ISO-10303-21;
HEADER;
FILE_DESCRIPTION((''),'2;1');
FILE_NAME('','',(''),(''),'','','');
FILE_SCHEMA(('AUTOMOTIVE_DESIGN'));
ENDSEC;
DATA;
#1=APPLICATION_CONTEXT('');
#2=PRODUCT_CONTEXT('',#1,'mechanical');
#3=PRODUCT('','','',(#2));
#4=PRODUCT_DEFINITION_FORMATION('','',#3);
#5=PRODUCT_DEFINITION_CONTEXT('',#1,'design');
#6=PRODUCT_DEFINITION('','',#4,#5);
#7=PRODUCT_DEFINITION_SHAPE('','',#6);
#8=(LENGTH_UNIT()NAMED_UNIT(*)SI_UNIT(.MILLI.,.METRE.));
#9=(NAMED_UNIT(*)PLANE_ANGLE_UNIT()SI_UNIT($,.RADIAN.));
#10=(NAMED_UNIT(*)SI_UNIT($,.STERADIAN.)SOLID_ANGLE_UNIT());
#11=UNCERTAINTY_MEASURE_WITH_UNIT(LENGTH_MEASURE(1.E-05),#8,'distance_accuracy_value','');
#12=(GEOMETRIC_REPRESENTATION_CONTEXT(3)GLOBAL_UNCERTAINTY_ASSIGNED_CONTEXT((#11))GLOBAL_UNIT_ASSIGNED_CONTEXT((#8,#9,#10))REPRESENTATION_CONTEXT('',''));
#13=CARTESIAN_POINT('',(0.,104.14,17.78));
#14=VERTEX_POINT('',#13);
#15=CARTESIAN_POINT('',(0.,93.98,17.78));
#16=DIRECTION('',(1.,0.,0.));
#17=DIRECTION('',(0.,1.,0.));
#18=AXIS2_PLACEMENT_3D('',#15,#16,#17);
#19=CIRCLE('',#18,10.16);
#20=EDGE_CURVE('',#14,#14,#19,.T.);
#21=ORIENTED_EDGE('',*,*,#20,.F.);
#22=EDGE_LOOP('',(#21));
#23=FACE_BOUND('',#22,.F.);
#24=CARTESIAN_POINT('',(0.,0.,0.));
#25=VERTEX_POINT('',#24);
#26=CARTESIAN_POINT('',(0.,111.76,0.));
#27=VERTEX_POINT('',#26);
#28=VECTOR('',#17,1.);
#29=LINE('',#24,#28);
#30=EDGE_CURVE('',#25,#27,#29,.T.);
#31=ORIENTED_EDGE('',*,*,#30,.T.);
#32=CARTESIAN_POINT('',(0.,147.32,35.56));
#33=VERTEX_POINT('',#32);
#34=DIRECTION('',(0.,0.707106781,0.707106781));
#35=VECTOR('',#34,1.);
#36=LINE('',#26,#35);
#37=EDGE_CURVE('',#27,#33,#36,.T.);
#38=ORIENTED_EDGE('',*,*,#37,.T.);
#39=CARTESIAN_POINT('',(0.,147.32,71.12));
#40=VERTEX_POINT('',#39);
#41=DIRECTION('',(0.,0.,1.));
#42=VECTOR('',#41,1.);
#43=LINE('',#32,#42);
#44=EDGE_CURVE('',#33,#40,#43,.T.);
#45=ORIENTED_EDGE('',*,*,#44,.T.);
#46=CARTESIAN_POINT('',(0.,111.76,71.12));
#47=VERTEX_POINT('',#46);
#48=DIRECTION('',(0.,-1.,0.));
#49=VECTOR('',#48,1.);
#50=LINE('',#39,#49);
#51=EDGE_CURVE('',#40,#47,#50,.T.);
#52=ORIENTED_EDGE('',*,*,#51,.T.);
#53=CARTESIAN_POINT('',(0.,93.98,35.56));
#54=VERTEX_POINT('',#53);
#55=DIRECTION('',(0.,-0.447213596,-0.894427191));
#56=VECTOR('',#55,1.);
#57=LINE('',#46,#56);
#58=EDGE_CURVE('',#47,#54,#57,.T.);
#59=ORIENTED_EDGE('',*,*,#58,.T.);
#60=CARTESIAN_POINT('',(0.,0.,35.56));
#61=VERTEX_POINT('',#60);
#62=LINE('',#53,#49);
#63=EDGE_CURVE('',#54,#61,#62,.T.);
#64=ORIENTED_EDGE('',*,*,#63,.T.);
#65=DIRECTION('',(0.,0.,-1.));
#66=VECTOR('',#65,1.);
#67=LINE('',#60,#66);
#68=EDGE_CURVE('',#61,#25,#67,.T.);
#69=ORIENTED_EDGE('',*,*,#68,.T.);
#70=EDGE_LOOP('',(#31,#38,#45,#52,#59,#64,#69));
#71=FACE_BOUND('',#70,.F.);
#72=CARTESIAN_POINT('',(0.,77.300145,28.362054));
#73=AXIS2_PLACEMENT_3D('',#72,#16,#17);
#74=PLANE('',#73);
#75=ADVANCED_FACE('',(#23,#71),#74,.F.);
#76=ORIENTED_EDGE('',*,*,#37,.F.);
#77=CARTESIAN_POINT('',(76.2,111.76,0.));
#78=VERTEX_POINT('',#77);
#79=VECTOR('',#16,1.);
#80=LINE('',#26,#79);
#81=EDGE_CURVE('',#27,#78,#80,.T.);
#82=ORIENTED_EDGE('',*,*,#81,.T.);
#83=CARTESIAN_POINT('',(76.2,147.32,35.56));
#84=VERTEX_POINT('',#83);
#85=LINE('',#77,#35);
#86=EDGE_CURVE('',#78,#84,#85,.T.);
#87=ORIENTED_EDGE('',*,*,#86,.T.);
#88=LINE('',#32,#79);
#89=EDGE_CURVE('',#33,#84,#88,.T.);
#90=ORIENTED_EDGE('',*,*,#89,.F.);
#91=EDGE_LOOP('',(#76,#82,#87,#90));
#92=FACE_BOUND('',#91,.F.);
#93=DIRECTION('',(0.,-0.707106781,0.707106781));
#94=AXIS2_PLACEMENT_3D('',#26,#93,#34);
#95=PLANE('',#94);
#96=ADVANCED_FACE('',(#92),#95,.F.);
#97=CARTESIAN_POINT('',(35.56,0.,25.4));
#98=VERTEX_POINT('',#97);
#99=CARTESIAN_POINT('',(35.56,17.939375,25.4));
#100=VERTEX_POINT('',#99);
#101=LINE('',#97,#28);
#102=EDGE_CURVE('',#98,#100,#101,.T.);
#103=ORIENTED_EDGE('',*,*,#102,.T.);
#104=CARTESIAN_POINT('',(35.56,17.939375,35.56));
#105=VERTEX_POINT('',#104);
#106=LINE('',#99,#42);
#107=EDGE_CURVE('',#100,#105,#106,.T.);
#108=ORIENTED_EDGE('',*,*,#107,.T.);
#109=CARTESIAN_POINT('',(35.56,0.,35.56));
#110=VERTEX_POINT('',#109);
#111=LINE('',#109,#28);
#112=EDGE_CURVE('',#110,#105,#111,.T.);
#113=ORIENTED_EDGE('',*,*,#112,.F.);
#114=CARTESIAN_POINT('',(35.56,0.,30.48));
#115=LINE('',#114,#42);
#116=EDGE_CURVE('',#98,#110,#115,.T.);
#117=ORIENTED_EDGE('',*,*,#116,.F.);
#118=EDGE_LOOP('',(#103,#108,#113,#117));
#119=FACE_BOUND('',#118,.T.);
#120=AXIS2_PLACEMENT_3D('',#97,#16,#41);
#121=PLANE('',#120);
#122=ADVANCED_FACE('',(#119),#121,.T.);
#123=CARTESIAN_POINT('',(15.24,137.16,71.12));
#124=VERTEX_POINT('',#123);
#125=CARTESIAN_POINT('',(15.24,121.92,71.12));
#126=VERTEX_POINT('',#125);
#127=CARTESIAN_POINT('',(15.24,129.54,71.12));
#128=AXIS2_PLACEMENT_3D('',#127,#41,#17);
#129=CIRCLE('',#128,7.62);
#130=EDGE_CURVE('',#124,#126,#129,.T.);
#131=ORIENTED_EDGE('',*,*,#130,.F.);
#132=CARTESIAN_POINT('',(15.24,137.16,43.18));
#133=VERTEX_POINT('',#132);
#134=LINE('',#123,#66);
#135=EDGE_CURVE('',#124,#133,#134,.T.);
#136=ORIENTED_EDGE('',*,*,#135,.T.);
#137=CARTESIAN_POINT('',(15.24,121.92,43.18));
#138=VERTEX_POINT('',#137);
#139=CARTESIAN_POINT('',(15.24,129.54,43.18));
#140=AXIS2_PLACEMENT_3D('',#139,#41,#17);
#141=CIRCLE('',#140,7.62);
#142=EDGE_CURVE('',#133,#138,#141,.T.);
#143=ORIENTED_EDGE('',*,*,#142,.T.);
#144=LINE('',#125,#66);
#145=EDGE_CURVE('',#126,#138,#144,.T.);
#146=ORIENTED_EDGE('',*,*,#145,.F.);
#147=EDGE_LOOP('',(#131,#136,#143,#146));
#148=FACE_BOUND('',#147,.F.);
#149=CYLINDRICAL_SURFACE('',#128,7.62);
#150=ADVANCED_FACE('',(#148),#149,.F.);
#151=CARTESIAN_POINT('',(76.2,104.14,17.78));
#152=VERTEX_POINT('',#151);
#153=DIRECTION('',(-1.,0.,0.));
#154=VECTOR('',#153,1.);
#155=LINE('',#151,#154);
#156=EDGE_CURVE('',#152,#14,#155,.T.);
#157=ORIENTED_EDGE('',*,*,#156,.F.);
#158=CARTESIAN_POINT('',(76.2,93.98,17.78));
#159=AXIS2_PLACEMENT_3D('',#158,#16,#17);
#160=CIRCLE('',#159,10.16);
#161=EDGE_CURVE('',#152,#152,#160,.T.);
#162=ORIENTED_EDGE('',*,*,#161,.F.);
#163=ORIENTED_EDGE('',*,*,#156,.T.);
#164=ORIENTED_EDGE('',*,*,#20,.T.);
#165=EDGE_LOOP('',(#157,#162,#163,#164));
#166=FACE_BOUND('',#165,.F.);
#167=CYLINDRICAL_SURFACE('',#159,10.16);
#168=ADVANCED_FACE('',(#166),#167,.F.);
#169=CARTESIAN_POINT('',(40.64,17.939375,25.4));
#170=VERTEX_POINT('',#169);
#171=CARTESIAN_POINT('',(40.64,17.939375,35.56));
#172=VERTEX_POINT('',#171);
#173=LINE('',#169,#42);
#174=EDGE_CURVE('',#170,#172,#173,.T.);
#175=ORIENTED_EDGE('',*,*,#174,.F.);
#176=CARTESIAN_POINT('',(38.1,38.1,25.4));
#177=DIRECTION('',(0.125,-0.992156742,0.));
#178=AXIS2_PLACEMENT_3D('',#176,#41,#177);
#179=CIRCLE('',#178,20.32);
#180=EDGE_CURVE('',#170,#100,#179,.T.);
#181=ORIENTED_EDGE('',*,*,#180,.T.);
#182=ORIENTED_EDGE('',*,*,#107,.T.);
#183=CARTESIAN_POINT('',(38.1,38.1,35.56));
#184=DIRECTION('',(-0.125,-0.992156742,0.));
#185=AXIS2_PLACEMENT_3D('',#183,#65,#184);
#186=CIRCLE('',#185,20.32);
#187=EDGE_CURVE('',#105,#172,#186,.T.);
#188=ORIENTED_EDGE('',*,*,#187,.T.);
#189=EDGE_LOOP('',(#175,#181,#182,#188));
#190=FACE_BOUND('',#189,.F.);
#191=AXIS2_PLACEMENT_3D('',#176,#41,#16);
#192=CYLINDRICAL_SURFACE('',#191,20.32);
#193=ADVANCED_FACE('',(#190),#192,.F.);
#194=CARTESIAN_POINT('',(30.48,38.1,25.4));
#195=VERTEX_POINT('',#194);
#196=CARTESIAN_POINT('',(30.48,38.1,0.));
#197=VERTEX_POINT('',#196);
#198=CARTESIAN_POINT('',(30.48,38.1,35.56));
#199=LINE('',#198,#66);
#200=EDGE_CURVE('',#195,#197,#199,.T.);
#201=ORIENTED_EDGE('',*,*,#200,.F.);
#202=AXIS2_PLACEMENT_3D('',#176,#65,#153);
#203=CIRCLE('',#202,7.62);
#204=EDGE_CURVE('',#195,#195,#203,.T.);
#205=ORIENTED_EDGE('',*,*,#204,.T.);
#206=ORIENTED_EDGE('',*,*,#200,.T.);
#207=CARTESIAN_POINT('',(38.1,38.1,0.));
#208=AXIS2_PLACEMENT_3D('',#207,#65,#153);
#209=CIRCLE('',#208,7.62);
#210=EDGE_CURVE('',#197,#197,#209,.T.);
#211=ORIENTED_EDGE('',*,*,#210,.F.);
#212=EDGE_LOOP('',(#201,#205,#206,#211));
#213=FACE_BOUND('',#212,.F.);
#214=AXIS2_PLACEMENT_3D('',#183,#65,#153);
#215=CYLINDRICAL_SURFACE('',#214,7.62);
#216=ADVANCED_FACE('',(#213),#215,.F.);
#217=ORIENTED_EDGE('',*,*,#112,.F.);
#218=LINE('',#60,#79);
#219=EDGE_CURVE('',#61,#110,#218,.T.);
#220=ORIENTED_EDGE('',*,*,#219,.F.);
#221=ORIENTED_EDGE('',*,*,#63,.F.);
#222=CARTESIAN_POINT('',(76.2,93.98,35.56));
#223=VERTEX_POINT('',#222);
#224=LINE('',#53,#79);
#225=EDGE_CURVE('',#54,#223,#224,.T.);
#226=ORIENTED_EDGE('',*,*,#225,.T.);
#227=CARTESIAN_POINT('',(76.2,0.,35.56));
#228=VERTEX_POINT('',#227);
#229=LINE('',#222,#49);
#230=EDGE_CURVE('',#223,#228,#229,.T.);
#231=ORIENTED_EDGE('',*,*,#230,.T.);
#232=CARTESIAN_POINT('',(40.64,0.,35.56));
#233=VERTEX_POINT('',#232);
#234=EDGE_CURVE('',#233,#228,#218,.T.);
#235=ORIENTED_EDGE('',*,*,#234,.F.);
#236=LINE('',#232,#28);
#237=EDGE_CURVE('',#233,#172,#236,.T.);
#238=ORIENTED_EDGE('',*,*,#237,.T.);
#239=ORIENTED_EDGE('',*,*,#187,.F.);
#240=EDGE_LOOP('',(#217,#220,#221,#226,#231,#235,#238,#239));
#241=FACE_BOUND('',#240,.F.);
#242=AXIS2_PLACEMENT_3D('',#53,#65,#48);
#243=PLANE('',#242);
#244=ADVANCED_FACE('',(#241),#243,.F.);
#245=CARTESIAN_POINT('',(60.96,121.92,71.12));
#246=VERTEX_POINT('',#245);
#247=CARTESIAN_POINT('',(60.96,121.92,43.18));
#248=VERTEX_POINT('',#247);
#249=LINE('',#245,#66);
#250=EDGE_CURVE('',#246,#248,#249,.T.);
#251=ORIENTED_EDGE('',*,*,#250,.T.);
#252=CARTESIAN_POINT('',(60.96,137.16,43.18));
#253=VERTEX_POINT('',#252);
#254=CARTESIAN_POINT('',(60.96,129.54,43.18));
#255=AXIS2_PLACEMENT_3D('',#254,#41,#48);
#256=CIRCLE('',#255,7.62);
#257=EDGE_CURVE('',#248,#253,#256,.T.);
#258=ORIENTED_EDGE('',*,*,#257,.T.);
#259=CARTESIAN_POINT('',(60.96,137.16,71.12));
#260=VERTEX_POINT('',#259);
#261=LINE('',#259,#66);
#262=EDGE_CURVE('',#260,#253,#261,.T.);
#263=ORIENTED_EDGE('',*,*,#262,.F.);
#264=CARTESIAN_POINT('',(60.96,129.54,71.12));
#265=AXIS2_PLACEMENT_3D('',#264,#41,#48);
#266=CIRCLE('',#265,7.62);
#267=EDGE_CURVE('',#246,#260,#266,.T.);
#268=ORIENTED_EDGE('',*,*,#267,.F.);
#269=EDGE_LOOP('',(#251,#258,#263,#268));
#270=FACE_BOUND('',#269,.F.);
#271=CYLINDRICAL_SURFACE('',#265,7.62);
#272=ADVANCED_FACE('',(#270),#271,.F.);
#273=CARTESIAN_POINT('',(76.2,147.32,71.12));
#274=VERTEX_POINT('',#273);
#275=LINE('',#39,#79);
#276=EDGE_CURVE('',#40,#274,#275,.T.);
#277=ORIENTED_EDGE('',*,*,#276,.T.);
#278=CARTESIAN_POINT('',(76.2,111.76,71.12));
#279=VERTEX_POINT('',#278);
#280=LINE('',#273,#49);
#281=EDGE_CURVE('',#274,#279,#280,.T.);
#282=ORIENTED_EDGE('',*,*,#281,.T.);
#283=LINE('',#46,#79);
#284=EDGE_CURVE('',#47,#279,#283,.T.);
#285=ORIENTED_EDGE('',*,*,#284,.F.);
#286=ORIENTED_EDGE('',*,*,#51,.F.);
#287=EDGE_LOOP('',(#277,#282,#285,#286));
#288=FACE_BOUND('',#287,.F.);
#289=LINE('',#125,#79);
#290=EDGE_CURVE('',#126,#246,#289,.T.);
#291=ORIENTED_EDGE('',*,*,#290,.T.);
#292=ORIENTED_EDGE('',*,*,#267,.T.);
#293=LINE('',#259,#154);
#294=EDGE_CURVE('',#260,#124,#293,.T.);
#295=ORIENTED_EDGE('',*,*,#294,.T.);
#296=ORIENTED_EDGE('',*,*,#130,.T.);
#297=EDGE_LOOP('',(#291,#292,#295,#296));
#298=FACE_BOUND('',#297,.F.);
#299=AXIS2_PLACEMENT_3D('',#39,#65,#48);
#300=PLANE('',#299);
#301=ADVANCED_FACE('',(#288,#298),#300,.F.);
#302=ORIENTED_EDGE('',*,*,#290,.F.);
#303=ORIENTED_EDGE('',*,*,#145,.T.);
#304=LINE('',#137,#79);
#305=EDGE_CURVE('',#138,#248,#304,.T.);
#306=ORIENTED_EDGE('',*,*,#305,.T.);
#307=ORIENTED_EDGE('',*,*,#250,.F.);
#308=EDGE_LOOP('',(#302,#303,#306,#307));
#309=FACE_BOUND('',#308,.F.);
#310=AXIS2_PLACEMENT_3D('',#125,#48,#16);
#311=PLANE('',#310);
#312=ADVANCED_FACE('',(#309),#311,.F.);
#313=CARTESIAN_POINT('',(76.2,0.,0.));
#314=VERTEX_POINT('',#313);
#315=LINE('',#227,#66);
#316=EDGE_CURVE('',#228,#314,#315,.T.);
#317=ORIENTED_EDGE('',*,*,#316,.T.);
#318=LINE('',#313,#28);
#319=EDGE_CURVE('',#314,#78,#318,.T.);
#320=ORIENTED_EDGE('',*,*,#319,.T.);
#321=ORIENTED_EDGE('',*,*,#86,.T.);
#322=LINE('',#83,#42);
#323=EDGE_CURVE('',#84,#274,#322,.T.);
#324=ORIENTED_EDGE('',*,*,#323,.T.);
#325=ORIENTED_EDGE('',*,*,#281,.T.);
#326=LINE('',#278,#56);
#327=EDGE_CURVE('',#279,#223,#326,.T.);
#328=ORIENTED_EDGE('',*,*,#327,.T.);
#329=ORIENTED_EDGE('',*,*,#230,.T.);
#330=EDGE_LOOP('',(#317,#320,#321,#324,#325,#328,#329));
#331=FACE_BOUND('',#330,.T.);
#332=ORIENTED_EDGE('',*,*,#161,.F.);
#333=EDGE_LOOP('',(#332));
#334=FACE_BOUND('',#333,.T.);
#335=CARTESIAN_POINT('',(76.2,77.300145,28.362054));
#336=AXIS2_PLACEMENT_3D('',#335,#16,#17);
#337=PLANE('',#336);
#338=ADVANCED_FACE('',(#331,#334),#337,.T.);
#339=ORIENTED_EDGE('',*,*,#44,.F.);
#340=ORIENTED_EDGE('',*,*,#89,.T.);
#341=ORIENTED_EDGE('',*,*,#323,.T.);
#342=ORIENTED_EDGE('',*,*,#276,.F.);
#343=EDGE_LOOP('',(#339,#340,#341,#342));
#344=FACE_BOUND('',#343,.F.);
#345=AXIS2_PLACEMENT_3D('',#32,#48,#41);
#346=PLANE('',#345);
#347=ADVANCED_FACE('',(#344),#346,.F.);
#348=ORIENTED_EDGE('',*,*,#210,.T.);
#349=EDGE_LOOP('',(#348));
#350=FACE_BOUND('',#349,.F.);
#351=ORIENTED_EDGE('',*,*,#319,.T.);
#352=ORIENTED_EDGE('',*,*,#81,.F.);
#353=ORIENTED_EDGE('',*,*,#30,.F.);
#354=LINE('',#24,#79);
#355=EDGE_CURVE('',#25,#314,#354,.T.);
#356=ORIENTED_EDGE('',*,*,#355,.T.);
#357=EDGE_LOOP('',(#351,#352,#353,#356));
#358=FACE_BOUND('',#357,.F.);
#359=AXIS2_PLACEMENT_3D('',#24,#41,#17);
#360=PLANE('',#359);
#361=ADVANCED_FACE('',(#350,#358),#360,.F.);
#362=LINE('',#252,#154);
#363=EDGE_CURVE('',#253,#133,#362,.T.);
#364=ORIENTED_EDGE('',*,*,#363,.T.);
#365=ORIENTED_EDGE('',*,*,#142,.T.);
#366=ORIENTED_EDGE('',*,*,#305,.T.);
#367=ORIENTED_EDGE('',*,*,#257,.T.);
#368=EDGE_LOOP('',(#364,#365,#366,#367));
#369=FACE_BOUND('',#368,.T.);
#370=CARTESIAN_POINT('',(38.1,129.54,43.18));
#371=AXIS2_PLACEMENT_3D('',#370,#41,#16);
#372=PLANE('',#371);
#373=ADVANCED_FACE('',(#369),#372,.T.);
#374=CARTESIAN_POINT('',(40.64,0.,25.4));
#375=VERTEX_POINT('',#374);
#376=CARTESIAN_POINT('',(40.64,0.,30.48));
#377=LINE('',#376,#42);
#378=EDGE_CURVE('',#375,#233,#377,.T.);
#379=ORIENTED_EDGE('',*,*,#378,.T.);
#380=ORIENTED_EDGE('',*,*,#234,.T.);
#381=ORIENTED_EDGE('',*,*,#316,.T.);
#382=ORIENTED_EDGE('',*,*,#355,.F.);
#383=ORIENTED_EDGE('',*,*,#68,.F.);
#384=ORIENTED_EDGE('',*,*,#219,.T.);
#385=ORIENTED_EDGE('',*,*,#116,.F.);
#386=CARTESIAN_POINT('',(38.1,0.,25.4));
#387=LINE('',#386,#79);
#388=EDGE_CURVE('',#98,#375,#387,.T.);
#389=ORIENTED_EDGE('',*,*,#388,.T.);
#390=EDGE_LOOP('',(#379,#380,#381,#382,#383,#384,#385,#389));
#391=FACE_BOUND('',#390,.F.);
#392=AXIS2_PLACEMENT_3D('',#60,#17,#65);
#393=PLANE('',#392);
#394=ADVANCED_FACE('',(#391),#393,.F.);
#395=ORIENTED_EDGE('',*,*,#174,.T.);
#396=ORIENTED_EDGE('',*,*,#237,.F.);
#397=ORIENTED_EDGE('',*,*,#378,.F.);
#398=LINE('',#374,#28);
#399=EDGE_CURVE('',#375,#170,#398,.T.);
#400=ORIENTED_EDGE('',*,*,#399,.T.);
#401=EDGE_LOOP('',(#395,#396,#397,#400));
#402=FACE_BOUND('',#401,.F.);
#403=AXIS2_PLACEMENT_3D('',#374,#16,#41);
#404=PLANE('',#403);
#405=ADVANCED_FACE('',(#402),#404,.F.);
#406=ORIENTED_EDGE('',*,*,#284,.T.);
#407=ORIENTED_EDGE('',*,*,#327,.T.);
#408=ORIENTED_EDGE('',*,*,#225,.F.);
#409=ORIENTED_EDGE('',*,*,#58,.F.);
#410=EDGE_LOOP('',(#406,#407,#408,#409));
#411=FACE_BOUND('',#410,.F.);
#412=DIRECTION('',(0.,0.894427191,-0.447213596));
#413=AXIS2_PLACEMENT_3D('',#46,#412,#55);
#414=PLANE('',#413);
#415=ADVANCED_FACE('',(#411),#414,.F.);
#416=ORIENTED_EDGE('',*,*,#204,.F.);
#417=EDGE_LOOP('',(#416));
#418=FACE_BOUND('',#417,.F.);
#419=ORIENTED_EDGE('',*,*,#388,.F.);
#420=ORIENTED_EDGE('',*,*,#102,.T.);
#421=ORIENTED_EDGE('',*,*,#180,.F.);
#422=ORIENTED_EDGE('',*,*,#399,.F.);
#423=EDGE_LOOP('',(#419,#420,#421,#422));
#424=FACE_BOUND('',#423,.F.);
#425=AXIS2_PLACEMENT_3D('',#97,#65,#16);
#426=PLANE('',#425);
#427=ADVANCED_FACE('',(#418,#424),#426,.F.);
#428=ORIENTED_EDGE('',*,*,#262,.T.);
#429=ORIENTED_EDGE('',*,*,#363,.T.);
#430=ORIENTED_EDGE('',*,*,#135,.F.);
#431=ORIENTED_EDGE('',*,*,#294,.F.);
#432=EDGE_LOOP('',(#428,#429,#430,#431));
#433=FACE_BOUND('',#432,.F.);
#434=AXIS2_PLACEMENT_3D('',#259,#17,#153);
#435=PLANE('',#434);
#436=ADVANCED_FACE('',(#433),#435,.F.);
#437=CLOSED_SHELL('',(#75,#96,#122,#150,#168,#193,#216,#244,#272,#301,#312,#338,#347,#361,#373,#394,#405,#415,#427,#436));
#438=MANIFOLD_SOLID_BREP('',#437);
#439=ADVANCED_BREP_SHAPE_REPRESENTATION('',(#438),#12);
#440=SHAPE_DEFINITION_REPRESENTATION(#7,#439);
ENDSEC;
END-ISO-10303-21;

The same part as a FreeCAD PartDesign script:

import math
import FreeCAD as App
import Part
import Sketcher
from FreeCAD import Vector
Q = App.Units.Quantity


def add_polygon(sketch, points):
    """Adds a closed chain of lines whose ends are joined by coincident constraints."""
    first, n = sketch.GeometryCount, len(points)
    for a, b in zip(points, points[1:] + points[:1]):
        sketch.addGeometry(Part.LineSegment(App.Vector(*a, 0), App.Vector(*b, 0)), False)
    for i in range(n):
        sketch.addConstraint(Sketcher.Constraint("Coincident", first + i, 2, first + (i + 1) % n, 1))

doc = App.newDocument("Part")
body = doc.addObject("PartDesign::Body", "Body")

# Sketch on YZ plane
sketch1 = body.newObject("Sketcher::SketchObject", "Sketch")
sketch1.AttachmentSupport = (doc.getObject("YZ_Plane"), [""])
sketch1.MapMode = "FlatFace"
add_polygon(sketch1, [(0, 35.56), (0, 0), (111.76, 0), (147.32, 35.56), (147.32, 71.12), (111.76, 71.12), (93.98, 35.56)])  # lines 0-6
sketch1.addConstraint(Sketcher.Constraint("Vertical", 0))
sketch1.addConstraint(Sketcher.Constraint("Horizontal", 1))
sketch1.addConstraint(Sketcher.Constraint("Vertical", 3))
sketch1.addConstraint(Sketcher.Constraint("Horizontal", 4))
sketch1.addConstraint(Sketcher.Constraint("Horizontal", 6))
sketch1.addConstraint(Sketcher.Constraint("Coincident", 0, 2, -1, 1))
sketch1.addConstraint(Sketcher.Constraint("Horizontal", 2, 2, 5, 2))
sketch1.addConstraint(Sketcher.Constraint("Vertical", 1, 2, 4, 2))
sketch1.addConstraint(Sketcher.Constraint("Equal", 4, 0))
sketch1.addConstraint(Sketcher.Constraint("Equal", 0, 3))
sketch1.addConstraint(Sketcher.Constraint("DistanceX", 1, 1, 1, 2, Q("4.4 in")))
sketch1.addConstraint(Sketcher.Constraint("DistanceX", 4, 2, 4, 1, Q("1.4 in")))
sketch1.addConstraint(Sketcher.Constraint("DistanceX", 6, 2, 6, 1, Q("3.7 in")))
pad1 = body.newObject("PartDesign::Pad", "Pad")
pad1.Profile = sketch1
pad1.Length = Q("3 in")

# Sketch on YZ plane
sketch2 = body.newObject("Sketcher::SketchObject", "Sketch001")
sketch2.AttachmentSupport = (doc.getObject("YZ_Plane"), [""])
sketch2.MapMode = "FlatFace"
sketch2.AttachmentOffset = App.Placement(Vector(0, 0, 3 * 25.4), App.Rotation())
sketch2.addGeometry(Part.Circle(Vector(93.98, 17.78, 0), Vector(0, 0, 1), 10.16), False)
sketch2.addConstraint(Sketcher.Constraint("Diameter", 0, Q("0.8 in")))
sketch2.addConstraint(Sketcher.Constraint("DistanceX", -1, 1, 0, 3, Q("3.7 in")))
sketch2.addConstraint(Sketcher.Constraint("DistanceY", -1, 1, 0, 3, Q("0.7 in")))
pocket1 = body.newObject("PartDesign::Pocket", "Pocket")
pocket1.Profile = sketch2
pocket1.Type = "ThroughAll"

# Sketch on XY plane
sketch3 = body.newObject("Sketcher::SketchObject", "Sketch002")
sketch3.AttachmentSupport = (doc.getObject("XY_Plane"), [""])
sketch3.MapMode = "FlatFace"
sketch3.AttachmentOffset = App.Placement(Vector(0, 0, 2.8 * 25.4), App.Rotation())
sketch3.addGeometry(Part.ArcOfCircle(Part.Circle(Vector(15.24, 129.54, 0), Vector(0, 0, 1), 7.62), math.radians(90), math.radians(270)), False)
sketch3.addGeometry(Part.LineSegment(Vector(15.24, 121.92, 0), Vector(60.96, 121.92, 0)), False)
sketch3.addGeometry(Part.ArcOfCircle(Part.Circle(Vector(60.96, 129.54, 0), Vector(0, 0, 1), 7.62), math.radians(-90), math.radians(90)), False)
sketch3.addGeometry(Part.LineSegment(Vector(60.96, 137.16, 0), Vector(15.24, 137.16, 0)), False)
sketch3.addConstraint(Sketcher.Constraint("Tangent", 0, 2, 1, 1))
sketch3.addConstraint(Sketcher.Constraint("Tangent", 1, 2, 2, 1))
sketch3.addConstraint(Sketcher.Constraint("Tangent", 2, 2, 3, 1))
sketch3.addConstraint(Sketcher.Constraint("Tangent", 3, 2, 0, 1))
sketch3.addConstraint(Sketcher.Constraint("Horizontal", 1))
sketch3.addConstraint(Sketcher.Constraint("Horizontal", 3))
sketch3.addConstraint(Sketcher.Constraint("Radius", 0, Q("0.3 in")))
sketch3.addConstraint(Sketcher.Constraint("DistanceX", 1, 1, 1, 2, Q("1.8 in")))
sketch3.addConstraint(Sketcher.Constraint("DistanceX", -1, 1, 0, 3, Q("0.6 in")))
sketch3.addConstraint(Sketcher.Constraint("DistanceY", -1, 1, 0, 3, Q("5.1 in")))
pocket2 = body.newObject("PartDesign::Pocket", "Pocket001")
pocket2.Profile = sketch3
pocket2.Length = Q("1.1 in")

# Sketch on XY plane
sketch4 = body.newObject("Sketcher::SketchObject", "Sketch003")
sketch4.AttachmentSupport = (doc.getObject("XY_Plane"), [""])
sketch4.MapMode = "FlatFace"
sketch4.AttachmentOffset = App.Placement(Vector(0, 0, 1.4 * 25.4), App.Rotation())
sketch4.addGeometry(Part.Circle(Vector(38.1, 38.1, 0), Vector(0, 0, 1), 7.62), False)
sketch4.addConstraint(Sketcher.Constraint("Diameter", 0, Q("0.6 in")))
sketch4.addConstraint(Sketcher.Constraint("DistanceX", -1, 1, 0, 3, Q("1.5 in")))
sketch4.addConstraint(Sketcher.Constraint("DistanceY", -1, 1, 0, 3, Q("1.5 in")))
doc.recompute()
hole = body.newObject("PartDesign::Hole", "Hole")
hole.Profile = sketch4
hole.ThreadType = "None"
hole.Diameter = Q("0.6 in")
hole.DepthType = "ThroughAll"
hole.HoleCutType = "Counterbore"
hole.HoleCutDiameter = Q("1.6 in")
hole.HoleCutDepth = Q("0.4 in")

# Sketch on XZ plane
sketch5 = body.newObject("Sketcher::SketchObject", "Sketch004")
sketch5.AttachmentSupport = (doc.getObject("XZ_Plane"), [""])
sketch5.MapMode = "FlatFace"
add_polygon(sketch5, [(35.56, 35.56), (35.56, 25.4), (40.64, 25.4), (40.64, 35.56)])  # lines 0-3
sketch5.addConstraint(Sketcher.Constraint("Vertical", 0))
sketch5.addConstraint(Sketcher.Constraint("Horizontal", 1))
sketch5.addConstraint(Sketcher.Constraint("Vertical", 2))
sketch5.addConstraint(Sketcher.Constraint("Horizontal", 3))
sketch5.addConstraint(Sketcher.Constraint("DistanceX", 1, 1, 1, 2, Q("0.2 in")))
sketch5.addConstraint(Sketcher.Constraint("DistanceY", 0, 2, 0, 1, Q("0.4 in")))
sketch5.addConstraint(Sketcher.Constraint("DistanceY", -1, 1, 0, 2, Q("1 in")))
sketch5.addConstraint(Sketcher.Constraint("DistanceX", -1, 1, 0, 2, Q("1.4 in")))
pocket3 = body.newObject("PartDesign::Pocket", "Pocket002")
pocket3.Profile = sketch5
pocket3.Length = Q("0.75 in")

doc.recompute()
